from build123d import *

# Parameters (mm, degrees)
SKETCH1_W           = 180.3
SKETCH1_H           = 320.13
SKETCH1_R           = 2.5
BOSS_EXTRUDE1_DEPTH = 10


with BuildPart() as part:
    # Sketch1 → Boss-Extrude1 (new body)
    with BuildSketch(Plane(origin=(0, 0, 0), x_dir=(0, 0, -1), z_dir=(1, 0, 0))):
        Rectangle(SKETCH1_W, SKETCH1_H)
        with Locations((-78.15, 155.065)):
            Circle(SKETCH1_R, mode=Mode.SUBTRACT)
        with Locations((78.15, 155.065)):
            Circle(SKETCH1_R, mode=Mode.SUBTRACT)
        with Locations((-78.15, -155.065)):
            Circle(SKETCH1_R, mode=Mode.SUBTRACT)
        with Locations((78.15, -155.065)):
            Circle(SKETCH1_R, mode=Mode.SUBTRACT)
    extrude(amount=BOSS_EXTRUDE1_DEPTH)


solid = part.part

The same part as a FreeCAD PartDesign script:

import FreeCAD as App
import Part
import Sketcher

V = App.Vector


def add_polygon(sketch, points):
    """Adds a closed chain of lines whose ends are joined by coincident constraints."""
    first, n = sketch.GeometryCount, len(points)
    for a, b in zip(points, points[1:] + points[:1]):
        sketch.addGeometry(Part.LineSegment(App.Vector(*a, 0), App.Vector(*b, 0)), False)
    for i in range(n):
        sketch.addConstraint(Sketcher.Constraint("Coincident", first + i, 2, first + (i + 1) % n, 1))

doc = App.newDocument("Part")
body = doc.addObject("PartDesign::Body", "Body")

sketch1 = body.newObject("Sketcher::SketchObject", "Sketch")
sketch1.AttachmentSupport = (doc.getObject("YZ_Plane"), [""])
sketch1.MapMode = "FlatFace"
add_polygon(sketch1, [(160.065, 90.15), (-160.065, 90.15), (-160.065, -90.15), (160.065, -90.15)])
sketch1.addGeometry(Part.Circle(V(-155.065, 78.15, 0), V(0, 0, 1), 2.5), False)
sketch1.addGeometry(Part.Circle(V(-155.065, -78.15, 0), V(0, 0, 1), 2.5), False)
sketch1.addGeometry(Part.Circle(V(155.065, 78.15, 0), V(0, 0, 1), 2.5), False)
sketch1.addGeometry(Part.Circle(V(155.065, -78.15, 0), V(0, 0, 1), 2.5), False)
sketch1.addConstraint([
    Sketcher.Constraint("Horizontal", 0),
    Sketcher.Constraint("Vertical", 1),
    Sketcher.Constraint("Horizontal", 2),
    Sketcher.Constraint("Vertical", 3),
    Sketcher.Constraint("Equal", 4, 5),
    Sketcher.Constraint("Equal", 5, 6),
    Sketcher.Constraint("Equal", 6, 7),
    Sketcher.Constraint("Symmetric", 5, 3, 6, 3, -1, 1),
    Sketcher.Constraint("Symmetric", 4, 3, 7, 3, -1, 1),
    Sketcher.Constraint("Symmetric", 0, 2, 2, 2, -1, 1),
    Sketcher.Constraint("Symmetric", 4, 3, 6, 3, -2),
    Sketcher.Constraint("Diameter", 4, 5.0),
    Sketcher.Constraint("DistanceY", 1, 2, 1, 1, 180.3),
    Sketcher.Constraint("DistanceX", 0, 2, 4, 3, 5.0),
    Sketcher.Constraint("DistanceY", 4, 3, 0, 2, 12.0),
    Sketcher.Constraint("DistanceX", 0, 2, 0, 1, 320.13),
])
pad1 = body.newObject("PartDesign::Pad", "Pad")
pad1.Profile = sketch1
pad1.Length = 10

doc.recompute()
